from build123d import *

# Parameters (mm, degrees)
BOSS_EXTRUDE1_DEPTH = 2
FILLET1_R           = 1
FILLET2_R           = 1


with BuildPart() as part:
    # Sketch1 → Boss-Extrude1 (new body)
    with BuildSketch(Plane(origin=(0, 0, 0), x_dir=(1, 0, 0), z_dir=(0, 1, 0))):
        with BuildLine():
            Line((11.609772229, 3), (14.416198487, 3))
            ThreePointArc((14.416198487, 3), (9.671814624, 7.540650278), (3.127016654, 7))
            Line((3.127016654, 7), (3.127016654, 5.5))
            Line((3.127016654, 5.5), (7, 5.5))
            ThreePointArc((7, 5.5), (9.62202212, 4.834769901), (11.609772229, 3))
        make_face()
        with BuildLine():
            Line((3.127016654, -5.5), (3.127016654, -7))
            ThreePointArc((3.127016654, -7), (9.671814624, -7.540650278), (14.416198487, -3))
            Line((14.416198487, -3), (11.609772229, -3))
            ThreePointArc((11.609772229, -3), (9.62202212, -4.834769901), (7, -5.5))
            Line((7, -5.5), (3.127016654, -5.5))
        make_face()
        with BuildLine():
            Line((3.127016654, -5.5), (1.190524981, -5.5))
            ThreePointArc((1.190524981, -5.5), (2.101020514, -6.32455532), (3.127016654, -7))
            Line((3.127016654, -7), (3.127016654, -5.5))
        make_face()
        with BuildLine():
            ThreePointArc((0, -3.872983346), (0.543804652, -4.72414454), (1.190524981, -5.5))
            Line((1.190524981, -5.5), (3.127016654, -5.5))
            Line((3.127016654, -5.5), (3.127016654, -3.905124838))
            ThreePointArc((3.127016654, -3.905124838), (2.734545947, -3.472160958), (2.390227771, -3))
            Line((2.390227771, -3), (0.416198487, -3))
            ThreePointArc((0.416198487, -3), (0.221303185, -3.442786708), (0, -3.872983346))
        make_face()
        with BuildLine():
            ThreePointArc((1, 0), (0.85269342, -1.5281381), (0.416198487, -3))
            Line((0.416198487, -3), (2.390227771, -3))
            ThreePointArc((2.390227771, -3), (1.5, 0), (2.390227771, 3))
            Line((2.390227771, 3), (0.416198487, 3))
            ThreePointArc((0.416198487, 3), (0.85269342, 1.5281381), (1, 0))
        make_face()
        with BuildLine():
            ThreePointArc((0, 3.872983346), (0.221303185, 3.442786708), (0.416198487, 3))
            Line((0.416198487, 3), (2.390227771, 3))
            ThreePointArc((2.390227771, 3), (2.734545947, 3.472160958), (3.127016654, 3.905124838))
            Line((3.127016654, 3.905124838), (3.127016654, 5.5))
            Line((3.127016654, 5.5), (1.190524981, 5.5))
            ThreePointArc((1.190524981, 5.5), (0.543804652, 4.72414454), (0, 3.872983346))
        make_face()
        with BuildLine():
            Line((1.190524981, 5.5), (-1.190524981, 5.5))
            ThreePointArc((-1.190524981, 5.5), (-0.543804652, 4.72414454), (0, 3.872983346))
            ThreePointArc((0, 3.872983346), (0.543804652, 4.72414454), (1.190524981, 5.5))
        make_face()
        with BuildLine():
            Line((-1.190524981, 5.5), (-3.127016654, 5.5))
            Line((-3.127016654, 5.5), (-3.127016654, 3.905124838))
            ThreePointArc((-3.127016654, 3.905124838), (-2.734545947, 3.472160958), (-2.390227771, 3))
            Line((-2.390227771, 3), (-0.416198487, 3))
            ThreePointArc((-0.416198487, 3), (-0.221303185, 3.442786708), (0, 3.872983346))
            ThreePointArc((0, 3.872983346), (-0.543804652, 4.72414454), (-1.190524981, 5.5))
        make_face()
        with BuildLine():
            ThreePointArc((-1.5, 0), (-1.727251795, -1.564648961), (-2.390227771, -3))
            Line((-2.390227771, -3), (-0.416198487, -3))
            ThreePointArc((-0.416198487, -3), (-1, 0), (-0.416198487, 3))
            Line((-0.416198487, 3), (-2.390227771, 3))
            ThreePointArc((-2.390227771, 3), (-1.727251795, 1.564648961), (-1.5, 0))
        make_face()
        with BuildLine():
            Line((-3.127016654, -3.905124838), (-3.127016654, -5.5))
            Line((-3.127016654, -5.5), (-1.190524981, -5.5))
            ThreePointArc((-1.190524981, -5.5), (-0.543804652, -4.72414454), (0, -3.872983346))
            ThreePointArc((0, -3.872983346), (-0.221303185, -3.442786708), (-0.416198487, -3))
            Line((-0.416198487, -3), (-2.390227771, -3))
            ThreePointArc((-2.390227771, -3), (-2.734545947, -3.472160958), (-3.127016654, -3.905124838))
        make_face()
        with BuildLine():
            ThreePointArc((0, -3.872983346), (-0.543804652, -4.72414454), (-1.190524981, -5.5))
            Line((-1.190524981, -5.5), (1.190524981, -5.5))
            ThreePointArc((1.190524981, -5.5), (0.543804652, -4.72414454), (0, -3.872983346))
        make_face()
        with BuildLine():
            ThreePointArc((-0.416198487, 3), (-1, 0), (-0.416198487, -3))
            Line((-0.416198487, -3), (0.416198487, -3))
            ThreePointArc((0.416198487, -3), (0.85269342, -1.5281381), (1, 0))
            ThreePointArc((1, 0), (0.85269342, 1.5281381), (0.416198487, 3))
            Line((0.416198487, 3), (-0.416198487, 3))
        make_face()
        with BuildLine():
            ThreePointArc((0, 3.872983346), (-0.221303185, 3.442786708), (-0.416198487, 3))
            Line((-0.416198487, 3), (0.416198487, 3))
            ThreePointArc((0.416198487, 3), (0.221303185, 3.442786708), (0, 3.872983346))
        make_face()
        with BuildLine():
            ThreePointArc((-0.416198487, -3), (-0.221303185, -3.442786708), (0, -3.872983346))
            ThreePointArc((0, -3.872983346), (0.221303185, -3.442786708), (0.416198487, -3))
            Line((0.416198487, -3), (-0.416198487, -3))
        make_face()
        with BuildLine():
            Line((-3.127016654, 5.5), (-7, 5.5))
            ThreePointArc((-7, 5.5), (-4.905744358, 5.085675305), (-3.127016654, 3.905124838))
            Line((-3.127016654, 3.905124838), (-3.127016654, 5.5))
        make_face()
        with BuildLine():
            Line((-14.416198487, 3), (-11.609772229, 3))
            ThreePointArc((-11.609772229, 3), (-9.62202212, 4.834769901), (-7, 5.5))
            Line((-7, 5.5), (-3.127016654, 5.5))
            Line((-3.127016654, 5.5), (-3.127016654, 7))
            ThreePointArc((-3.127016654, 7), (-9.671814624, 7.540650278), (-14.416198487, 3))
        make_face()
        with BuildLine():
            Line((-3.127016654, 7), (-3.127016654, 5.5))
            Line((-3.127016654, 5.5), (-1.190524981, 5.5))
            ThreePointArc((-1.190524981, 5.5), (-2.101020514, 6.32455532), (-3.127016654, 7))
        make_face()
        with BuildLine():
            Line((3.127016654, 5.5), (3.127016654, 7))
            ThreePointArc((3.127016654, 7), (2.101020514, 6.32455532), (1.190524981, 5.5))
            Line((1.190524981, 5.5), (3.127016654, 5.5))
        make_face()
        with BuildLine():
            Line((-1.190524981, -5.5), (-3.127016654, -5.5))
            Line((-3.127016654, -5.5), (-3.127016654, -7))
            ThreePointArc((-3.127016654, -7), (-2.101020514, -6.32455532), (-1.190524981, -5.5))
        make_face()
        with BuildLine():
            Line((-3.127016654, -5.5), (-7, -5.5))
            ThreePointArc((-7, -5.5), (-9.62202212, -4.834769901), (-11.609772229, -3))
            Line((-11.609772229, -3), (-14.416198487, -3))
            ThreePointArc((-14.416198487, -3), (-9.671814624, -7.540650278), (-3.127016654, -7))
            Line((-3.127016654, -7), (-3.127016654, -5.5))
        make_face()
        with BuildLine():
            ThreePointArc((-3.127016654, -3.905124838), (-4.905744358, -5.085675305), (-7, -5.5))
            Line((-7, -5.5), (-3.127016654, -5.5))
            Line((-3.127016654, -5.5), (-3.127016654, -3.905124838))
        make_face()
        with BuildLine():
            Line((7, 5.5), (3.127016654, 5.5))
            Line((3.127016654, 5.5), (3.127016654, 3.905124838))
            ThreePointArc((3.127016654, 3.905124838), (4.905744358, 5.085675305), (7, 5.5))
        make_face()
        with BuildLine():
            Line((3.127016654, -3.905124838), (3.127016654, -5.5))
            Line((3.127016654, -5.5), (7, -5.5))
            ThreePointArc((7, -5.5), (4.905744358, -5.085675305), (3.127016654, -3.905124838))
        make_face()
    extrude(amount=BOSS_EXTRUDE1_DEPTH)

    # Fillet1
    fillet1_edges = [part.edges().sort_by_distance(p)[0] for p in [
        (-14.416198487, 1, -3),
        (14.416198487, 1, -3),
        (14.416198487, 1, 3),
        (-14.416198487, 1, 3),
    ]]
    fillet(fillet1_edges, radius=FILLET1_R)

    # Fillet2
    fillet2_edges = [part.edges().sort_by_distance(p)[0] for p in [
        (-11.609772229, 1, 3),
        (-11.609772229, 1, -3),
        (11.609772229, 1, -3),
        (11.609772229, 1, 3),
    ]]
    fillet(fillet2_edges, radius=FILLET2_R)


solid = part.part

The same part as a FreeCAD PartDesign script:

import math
import FreeCAD as App
import Part
import Sketcher


def edges_at(feature, points):
    """Names of the edges that pass closest to the given points."""
    edges = feature.Shape.Edges
    near = lambda p: min(range(len(edges)), key=lambda i: edges[i].distToShape(Part.Vertex(*p))[0])
    return sorted({f"Edge{near(p) + 1}" for p in points})

doc = App.newDocument("Part")
params = doc.addObject("Spreadsheet::Sheet", "Params")
for row, (alias, value) in enumerate([
    ("sketch1_radius", "8 mm"),
    ("sketch1_radius2", "5.5 mm"),
    ("pad1_length", "2 mm"),
    ("fillet_radius", "1 mm"),
    ("fillet2_radius", "1 mm"),
], start=1):
    params.set(f"A{row}", alias)
    params.set(f"B{row}", "=" + value)
    params.setAlias(f"B{row}", alias)

body = doc.addObject("PartDesign::Body", "Body")

sketch1 = body.newObject("Sketcher::SketchObject", "Sketch")
sketch1.AttachmentSupport = (doc.getObject("XZ_Plane"), [""])
sketch1.MapMode = "FlatFace"
sketch1.addGeometry([
    Part.LineSegment(App.Vector(11.6, -3, 0), App.Vector(14.4, -3, 0)),
    Part.ArcOfCircle(Part.Circle(App.Vector(7, 0, 0), App.Vector(0, 0, 1), 8), math.radians(-119), math.radians(-22)),
    Part.ArcOfCircle(Part.Circle(App.Vector(7, 0, 0), App.Vector(0, 0, 1), 8), math.radians(-136.57), math.radians(-118.96)),
    Part.LineSegment(App.Vector(1.2, -5.5, 0), App.Vector(-1.2, -5.5, 0)),
    Part.ArcOfCircle(Part.Circle(App.Vector(-7, 0, 0), App.Vector(0, 0, 1), 8), math.radians(-61.04), math.radians(-43.43)),
    Part.ArcOfCircle(Part.Circle(App.Vector(-7, 0, 0), App.Vector(0, 0, 1), 8), math.radians(-158), math.radians(-61)),
    Part.LineSegment(App.Vector(-14.4, -3, 0), App.Vector(-11.6, -3, 0)),
    Part.ArcOfCircle(Part.Circle(App.Vector(-7, 0, 0), App.Vector(0, 0, 1), 5.5), math.radians(-147), math.radians(-90)),
    Part.ArcOfCircle(Part.Circle(App.Vector(-7, 0, 0), App.Vector(0, 0, 1), 5.5), math.radians(-90), math.radians(-45)),
    Part.ArcOfCircle(Part.Circle(App.Vector(-7, 0, 0), App.Vector(0, 0, 1), 5.5), math.radians(-45.24), math.radians(-33.06)),
    Part.ArcOfCircle(Part.Circle(App.Vector(-7, 0, 0), App.Vector(0, 0, 1), 5.5), math.radians(-33), math.radians(0)),
    Part.ArcOfCircle(Part.Circle(App.Vector(-7, 0, 0), App.Vector(0, 0, 1), 5.5), math.radians(0), math.radians(33)),
    Part.ArcOfCircle(Part.Circle(App.Vector(-7, 0, 0), App.Vector(0, 0, 1), 5.5), math.radians(33.06), math.radians(45.24)),
    Part.ArcOfCircle(Part.Circle(App.Vector(-7, 0, 0), App.Vector(0, 0, 1), 5.5), math.radians(45), math.radians(90)),
    Part.ArcOfCircle(Part.Circle(App.Vector(-7, 0, 0), App.Vector(0, 0, 1), 5.5), math.radians(90), math.radians(147)),
    Part.LineSegment(App.Vector(-11.6, 3, 0), App.Vector(-14.4, 3, 0)),
    Part.ArcOfCircle(Part.Circle(App.Vector(-7, 0, 0), App.Vector(0, 0, 1), 8), math.radians(61), math.radians(158)),
    Part.ArcOfCircle(Part.Circle(App.Vector(-7, 0, 0), App.Vector(0, 0, 1), 8), math.radians(43.43), math.radians(61.04)),
    Part.LineSegment(App.Vector(-1.2, 5.5, 0), App.Vector(1.2, 5.5, 0)),
    Part.ArcOfCircle(Part.Circle(App.Vector(7, 0, 0), App.Vector(0, 0, 1), 8), math.radians(118.96), math.radians(136.57)),
    Part.ArcOfCircle(Part.Circle(App.Vector(7, 0, 0), App.Vector(0, 0, 1), 8), math.radians(22), math.radians(119)),
    Part.LineSegment(App.Vector(14.4, 3, 0), App.Vector(11.6, 3, 0)),
    Part.ArcOfCircle(Part.Circle(App.Vector(7, 0, 0), App.Vector(0, 0, 1), 5.5), math.radians(33), math.radians(90)),
    Part.ArcOfCircle(Part.Circle(App.Vector(7, 0, 0), App.Vector(0, 0, 1), 5.5), math.radians(90), math.radians(135)),
    Part.ArcOfCircle(Part.Circle(App.Vector(7, 0, 0), App.Vector(0, 0, 1), 5.5), math.radians(134.76), math.radians(146.94)),
    Part.ArcOfCircle(Part.Circle(App.Vector(7, 0, 0), App.Vector(0, 0, 1), 5.5), math.radians(147), math.radians(213)),
    Part.ArcOfCircle(Part.Circle(App.Vector(7, 0, 0), App.Vector(0, 0, 1), 5.5), math.radians(-146.94), math.radians(-134.76)),
    Part.ArcOfCircle(Part.Circle(App.Vector(7, 0, 0), App.Vector(0, 0, 1), 5.5), math.radians(-135), math.radians(-90)),
    Part.ArcOfCircle(Part.Circle(App.Vector(7, 0, 0), App.Vector(0, 0, 1), 5.5), math.radians(-90), math.radians(-33)),
], False)
sketch1.addConstraint([
    Sketcher.Constraint("Coincident", 0, 2, 1, 2),
    Sketcher.Constraint("Tangent", 1, 1, 2, 2),
    Sketcher.Constraint("Coincident", 2, 1, 3, 1),
    Sketcher.Constraint("Coincident", 3, 2, 4, 2),
    Sketcher.Constraint("Tangent", 4, 1, 5, 2),
    Sketcher.Constraint("Coincident", 5, 1, 6, 1),
    Sketcher.Constraint("Coincident", 6, 2, 7, 1),
    Sketcher.Constraint("Tangent", 7, 2, 8, 1),
    Sketcher.Constraint("Tangent", 8, 2, 9, 1),
    Sketcher.Constraint("Tangent", 9, 2, 10, 1),
    Sketcher.Constraint("Tangent", 10, 2, 11, 1),
    Sketcher.Constraint("Tangent", 11, 2, 12, 1),
    Sketcher.Constraint("Tangent", 12, 2, 13, 1),
    Sketcher.Constraint("Tangent", 13, 2, 14, 1),
    Sketcher.Constraint("Coincident", 14, 2, 15, 1),
    Sketcher.Constraint("Coincident", 15, 2, 16, 2),
    Sketcher.Constraint("Tangent", 16, 1, 17, 2),
    Sketcher.Constraint("Coincident", 17, 1, 18, 1),
    Sketcher.Constraint("Coincident", 18, 2, 19, 2),
    Sketcher.Constraint("Tangent", 19, 1, 20, 2),
    Sketcher.Constraint("Coincident", 20, 1, 21, 1),
    Sketcher.Constraint("Coincident", 21, 2, 22, 1),
    Sketcher.Constraint("Tangent", 22, 2, 23, 1),
    Sketcher.Constraint("Tangent", 23, 2, 24, 1),
    Sketcher.Constraint("Tangent", 24, 2, 25, 1),
    Sketcher.Constraint("Tangent", 25, 2, 26, 1),
    Sketcher.Constraint("Tangent", 26, 2, 27, 1),
    Sketcher.Constraint("Tangent", 27, 2, 28, 1),
    Sketcher.Constraint("Coincident", 28, 2, 0, 1),
    Sketcher.Constraint("Horizontal", 0),
    Sketcher.Constraint("Horizontal", 3),
    Sketcher.Constraint("Horizontal", 6),
    Sketcher.Constraint("Horizontal", 15),
    Sketcher.Constraint("Horizontal", 18),
    Sketcher.Constraint("Horizontal", 21),
    Sketcher.Constraint("Coincident", 7, 3, 4, 3),
    Sketcher.Constraint("Coincident", 9, 3, 4, 3),
    Sketcher.Constraint("Coincident", 11, 3, 4, 3),
    Sketcher.Constraint("Coincident", 13, 3, 4, 3),
    Sketcher.Constraint("Coincident", 16, 3, 4, 3),
    Sketcher.Constraint("Coincident", 19, 3, 1, 3),
    Sketcher.Constraint("Coincident", 22, 3, 1, 3),
    Sketcher.Constraint("Coincident", 24, 3, 1, 3),
    Sketcher.Constraint("Coincident", 26, 3, 1, 3),
    Sketcher.Constraint("Coincident", 28, 3, 1, 3),
    Sketcher.Constraint("Equal", 1, 2),
    Sketcher.Constraint("Equal", 2, 4),
    Sketcher.Constraint("Equal", 4, 5),
    Sketcher.Constraint("Equal", 13, 14),
    Sketcher.Constraint("Equal", 5, 16),
    Sketcher.Constraint("Equal", 16, 17),
    Sketcher.Constraint("Equal", 17, 19),
    Sketcher.Constraint("Equal", 19, 20),
    Sketcher.Constraint("Equal", 14, 22),
    Sketcher.Constraint("Symmetric", 1, 3, 4, 3, -1, 1),
    Sketcher.Constraint("Symmetric", 1, 1, 4, 1, -2),
    Sketcher.Constraint("PointOnObject", 10, 2, -1),
    Sketcher.Constraint("Horizontal", 0, 2, 5, 1),
    Sketcher.Constraint("Horizontal", 3, 2, 7, 2),
    Sketcher.Constraint("Horizontal", 6, 2, 9, 2),
    Sketcher.Constraint("Horizontal", 11, 2, 14, 2),
    Sketcher.Constraint("Horizontal", 13, 2, 17, 1),
    Sketcher.Constraint("Horizontal", 16, 1, 19, 1),
    Sketcher.Constraint("Horizontal", 15, 2, 20, 1),
    Sketcher.Constraint("Horizontal", 12, 2, 23, 2),
    Sketcher.Constraint("Horizontal", 21, 2, 24, 2),
    Sketcher.Constraint("Horizontal", 9, 2, 25, 2),
    Sketcher.Constraint("Horizontal", 8, 2, 26, 2),
    Sketcher.Constraint("Vertical", 17, 3, 7, 2),
    Sketcher.Constraint("Vertical", 4, 1, 8, 2),
    Sketcher.Constraint("Vertical", 9, 2, 11, 2),
    Sketcher.Constraint("Vertical", 8, 2, 12, 2),
    Sketcher.Constraint("Vertical", 7, 2, 13, 2),
    Sketcher.Constraint("Vertical", 12, 2, 16, 1),
    Sketcher.Constraint("Vertical", 28, 3, 22, 2),
    Sketcher.Constraint("Vertical", 22, 2, 27, 2),
    Sketcher.Constraint("Radius", 1, 8.0),
    Sketcher.Constraint("Radius", 7, 5.5),
    Sketcher.Constraint("DistanceX", -1, 1, 1, 3, 7.0),
    Sketcher.Constraint("DistanceY", 0, 2, -1, 1, 3.0),
    Sketcher.Constraint("DistanceY", 1, 1, -1, 1, 7.0),
])
sketch1.setExpression("Constraints[76]", "Params.sketch1_radius")
sketch1.setExpression("Constraints[77]", "Params.sketch1_radius2")
pad1 = body.newObject("PartDesign::Pad", "Pad")
pad1.Profile = sketch1
pad1.setExpression("Length", "Params.pad1_length")
pad1.Reversed = True
doc.recompute()

fillet = body.newObject("PartDesign::Fillet", "Fillet")
fillet.Base = (pad1, edges_at(pad1, [
    (-14.416, 1, -3),
    (14.416, 1, -3),
    (14.416, 1, 3),
    (-14.416, 1, 3),
]))
fillet.setExpression("Radius", "Params.fillet_radius")
doc.recompute()

fillet2 = body.newObject("PartDesign::Fillet", "Fillet001")
fillet2.Base = (fillet, edges_at(fillet, [
    (-11.61, 1, 3),
    (-11.61, 1, -3),
    (11.61, 1, -3),
    (11.61, 1, 3),
]))
fillet2.setExpression("Radius", "Params.fillet2_radius")

doc.recompute()
